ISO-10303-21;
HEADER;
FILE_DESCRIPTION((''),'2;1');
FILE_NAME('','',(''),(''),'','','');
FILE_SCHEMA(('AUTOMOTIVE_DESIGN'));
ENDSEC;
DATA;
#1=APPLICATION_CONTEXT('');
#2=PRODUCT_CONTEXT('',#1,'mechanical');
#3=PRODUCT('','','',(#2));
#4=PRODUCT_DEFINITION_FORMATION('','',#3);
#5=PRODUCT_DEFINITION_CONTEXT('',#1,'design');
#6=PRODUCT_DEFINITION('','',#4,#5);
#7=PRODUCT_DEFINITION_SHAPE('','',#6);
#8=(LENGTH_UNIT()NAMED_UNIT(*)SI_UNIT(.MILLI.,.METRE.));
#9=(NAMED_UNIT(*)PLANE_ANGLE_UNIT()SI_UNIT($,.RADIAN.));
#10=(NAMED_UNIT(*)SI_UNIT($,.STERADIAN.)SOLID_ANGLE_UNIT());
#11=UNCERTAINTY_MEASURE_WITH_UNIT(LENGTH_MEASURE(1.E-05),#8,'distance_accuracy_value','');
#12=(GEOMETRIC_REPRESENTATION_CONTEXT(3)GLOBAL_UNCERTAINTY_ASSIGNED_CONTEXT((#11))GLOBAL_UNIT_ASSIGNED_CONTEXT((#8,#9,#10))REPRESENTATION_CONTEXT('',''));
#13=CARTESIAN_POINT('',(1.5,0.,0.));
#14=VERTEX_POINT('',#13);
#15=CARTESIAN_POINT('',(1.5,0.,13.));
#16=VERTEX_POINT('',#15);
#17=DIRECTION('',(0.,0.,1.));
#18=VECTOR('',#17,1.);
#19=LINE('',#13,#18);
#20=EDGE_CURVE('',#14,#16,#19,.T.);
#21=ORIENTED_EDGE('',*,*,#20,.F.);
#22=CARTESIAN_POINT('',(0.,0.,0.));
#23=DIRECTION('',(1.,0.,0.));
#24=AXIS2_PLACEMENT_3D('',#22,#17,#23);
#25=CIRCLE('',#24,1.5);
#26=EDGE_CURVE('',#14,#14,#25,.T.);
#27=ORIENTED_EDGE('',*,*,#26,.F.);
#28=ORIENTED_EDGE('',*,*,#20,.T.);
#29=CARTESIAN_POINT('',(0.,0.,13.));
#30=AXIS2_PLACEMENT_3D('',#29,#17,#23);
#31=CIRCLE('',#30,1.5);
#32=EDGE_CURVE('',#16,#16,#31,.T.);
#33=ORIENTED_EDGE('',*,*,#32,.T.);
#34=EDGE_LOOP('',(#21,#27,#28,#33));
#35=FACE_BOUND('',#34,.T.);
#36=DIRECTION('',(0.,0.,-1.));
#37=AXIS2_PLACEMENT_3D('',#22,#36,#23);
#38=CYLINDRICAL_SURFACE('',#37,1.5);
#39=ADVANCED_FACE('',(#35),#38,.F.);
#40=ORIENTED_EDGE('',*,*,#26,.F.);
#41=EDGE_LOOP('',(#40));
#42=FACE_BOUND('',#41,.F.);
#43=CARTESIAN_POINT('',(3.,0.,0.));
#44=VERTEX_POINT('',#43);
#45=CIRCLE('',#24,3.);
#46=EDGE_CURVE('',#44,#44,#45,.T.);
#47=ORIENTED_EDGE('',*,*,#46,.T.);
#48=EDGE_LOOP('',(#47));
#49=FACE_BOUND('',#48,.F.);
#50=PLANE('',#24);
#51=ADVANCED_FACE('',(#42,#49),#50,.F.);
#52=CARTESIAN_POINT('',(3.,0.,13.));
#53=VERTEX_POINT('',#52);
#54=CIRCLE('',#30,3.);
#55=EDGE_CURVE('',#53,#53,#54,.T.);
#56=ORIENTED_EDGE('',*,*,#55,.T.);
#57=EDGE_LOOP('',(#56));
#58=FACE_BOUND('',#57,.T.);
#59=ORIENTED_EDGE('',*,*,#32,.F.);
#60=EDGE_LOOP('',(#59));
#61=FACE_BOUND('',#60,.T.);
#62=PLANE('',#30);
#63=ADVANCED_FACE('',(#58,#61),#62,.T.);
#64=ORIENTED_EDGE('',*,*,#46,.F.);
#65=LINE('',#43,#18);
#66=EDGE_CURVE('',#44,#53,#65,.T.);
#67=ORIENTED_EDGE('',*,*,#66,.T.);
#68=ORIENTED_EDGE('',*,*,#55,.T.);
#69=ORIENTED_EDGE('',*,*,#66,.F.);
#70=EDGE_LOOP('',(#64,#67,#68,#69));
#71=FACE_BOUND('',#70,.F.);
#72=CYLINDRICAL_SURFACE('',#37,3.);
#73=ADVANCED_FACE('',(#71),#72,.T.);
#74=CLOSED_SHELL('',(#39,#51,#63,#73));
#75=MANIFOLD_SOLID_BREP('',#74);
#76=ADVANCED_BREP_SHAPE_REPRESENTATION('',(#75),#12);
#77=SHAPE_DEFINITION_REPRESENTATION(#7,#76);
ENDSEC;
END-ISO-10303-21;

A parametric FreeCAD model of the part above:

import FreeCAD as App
import Part
import Sketcher

V = App.Vector
Q = App.Units.Quantity

doc = App.newDocument("Part")
body = doc.addObject("PartDesign::Body", "Body")

# Sketch on XY plane
sketch1 = body.newObject("Sketcher::SketchObject", "Sketch")
sketch1.AttachmentSupport = (doc.getObject("XY_Plane"), [""])
sketch1.MapMode = "FlatFace"
sketch1.addGeometry([
    Part.Circle(V(0, 0, 0), V(0, 0, 1), 3),
    Part.Circle(V(0, 0, 0), V(0, 0, 1), 1.5),
], False)
sketch1.addConstraint([
    Sketcher.Constraint("Coincident", 0, 3, -1, 1),
    Sketcher.Constraint("Coincident", 1, 3, -1, 1),
    Sketcher.Constraint("Diameter", 0, Q("6 mm")),
    Sketcher.Constraint("Diameter", 1, Q("3 mm")),
])
pad1 = body.newObject("PartDesign::Pad", "Pad")
pad1.Profile = sketch1
pad1.Length = 13

doc.recompute()
